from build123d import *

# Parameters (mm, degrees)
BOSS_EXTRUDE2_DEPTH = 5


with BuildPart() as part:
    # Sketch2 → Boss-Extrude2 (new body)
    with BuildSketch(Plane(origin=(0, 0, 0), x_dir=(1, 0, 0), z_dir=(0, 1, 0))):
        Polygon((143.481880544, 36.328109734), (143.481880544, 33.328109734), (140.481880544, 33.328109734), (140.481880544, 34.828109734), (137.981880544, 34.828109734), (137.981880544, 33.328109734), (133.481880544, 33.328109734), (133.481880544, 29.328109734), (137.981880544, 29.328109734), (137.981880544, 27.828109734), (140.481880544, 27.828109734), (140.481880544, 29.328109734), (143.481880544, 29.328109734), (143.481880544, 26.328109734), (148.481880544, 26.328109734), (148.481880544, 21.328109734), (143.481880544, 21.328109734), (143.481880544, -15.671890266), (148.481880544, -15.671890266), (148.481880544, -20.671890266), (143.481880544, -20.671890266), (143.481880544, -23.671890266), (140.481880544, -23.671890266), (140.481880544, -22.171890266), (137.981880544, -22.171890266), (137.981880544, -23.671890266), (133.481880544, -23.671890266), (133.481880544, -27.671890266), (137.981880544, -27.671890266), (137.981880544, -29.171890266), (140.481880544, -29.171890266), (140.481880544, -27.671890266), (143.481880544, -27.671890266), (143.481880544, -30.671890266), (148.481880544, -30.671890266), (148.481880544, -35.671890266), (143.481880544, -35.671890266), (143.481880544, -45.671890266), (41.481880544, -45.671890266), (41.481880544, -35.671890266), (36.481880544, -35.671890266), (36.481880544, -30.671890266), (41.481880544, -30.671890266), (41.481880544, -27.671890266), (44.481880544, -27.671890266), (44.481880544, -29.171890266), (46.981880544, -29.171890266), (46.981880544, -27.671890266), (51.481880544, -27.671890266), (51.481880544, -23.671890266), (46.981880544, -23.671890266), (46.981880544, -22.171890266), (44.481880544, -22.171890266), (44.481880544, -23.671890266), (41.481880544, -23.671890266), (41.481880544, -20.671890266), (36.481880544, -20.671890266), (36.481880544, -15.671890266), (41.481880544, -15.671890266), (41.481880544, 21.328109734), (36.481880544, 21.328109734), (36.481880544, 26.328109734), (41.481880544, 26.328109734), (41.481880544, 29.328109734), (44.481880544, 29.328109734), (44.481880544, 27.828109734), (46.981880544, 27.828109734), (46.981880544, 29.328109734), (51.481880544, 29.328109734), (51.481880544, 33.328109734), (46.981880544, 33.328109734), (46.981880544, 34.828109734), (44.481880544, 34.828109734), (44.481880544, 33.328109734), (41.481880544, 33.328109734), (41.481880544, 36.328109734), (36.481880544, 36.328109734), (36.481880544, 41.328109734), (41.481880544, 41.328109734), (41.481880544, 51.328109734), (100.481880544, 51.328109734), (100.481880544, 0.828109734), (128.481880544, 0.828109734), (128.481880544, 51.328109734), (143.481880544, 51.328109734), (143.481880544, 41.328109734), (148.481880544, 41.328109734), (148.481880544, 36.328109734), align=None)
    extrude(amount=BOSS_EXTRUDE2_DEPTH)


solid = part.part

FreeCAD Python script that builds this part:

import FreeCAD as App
import Part
import Sketcher


def add_polygon(sketch, points):
    """Adds a closed chain of lines whose ends are joined by coincident constraints."""
    first, n = sketch.GeometryCount, len(points)
    for a, b in zip(points, points[1:] + points[:1]):
        sketch.addGeometry(Part.LineSegment(App.Vector(*a, 0), App.Vector(*b, 0)), False)
    for i in range(n):
        sketch.addConstraint(Sketcher.Constraint("Coincident", first + i, 2, first + (i + 1) % n, 1))

doc = App.newDocument("Part")
body = doc.addObject("PartDesign::Body", "Body")

sketch1 = body.newObject("Sketcher::SketchObject", "Sketch")
sketch1.AttachmentSupport = (doc.getObject("XZ_Plane"), [""])
sketch1.MapMode = "FlatFace"
add_polygon(sketch1, [(143.481881, -33.32811), (143.481881, -36.32811), (148.481881, -36.32811), (148.481881, -41.32811), (143.481881, -41.32811), (143.481881, -51.32811), (128.481881, -51.32811), (128.481881, -0.82811), (100.481881, -0.82811), (100.481881, -51.32811), (41.481881, -51.32811), (41.481881, -41.32811), (36.481881, -41.32811), (36.481881, -36.32811), (41.481881, -36.32811), (41.481881, -33.32811), (44.481881, -33.32811), (44.481881, -34.82811), (46.981881, -34.82811), (46.981881, -33.32811), (51.481881, -33.32811), (51.481881, -29.32811), (46.981881, -29.32811), (46.981881, -27.82811), (44.481881, -27.82811), (44.481881, -29.32811), (41.481881, -29.32811), (41.481881, -26.32811), (36.481881, -26.32811), (36.481881, -21.32811), (41.481881, -21.32811), (41.481881, 15.67189), (36.481881, 15.67189), (36.481881, 20.67189), (41.481881, 20.67189), (41.481881, 23.67189), (44.481881, 23.67189), (44.481881, 22.17189), (46.981881, 22.17189), (46.981881, 23.67189), (51.481881, 23.67189), (51.481881, 27.67189), (46.981881, 27.67189), (46.981881, 29.17189), (44.481881, 29.17189), (44.481881, 27.67189), (41.481881, 27.67189), (41.481881, 30.67189), (36.481881, 30.67189), (36.481881, 35.67189), (41.481881, 35.67189), (41.481881, 45.67189), (143.481881, 45.67189), (143.481881, 35.67189), (148.481881, 35.67189), (148.481881, 30.67189), (143.481881, 30.67189), (143.481881, 27.67189), (140.481881, 27.67189), (140.481881, 29.17189), (137.981881, 29.17189), (137.981881, 27.67189), (133.481881, 27.67189), (133.481881, 23.67189), (137.981881, 23.67189), (137.981881, 22.17189), (140.481881, 22.17189), (140.481881, 23.67189), (143.481881, 23.67189), (143.481881, 20.67189), (148.481881, 20.67189), (148.481881, 15.67189), (143.481881, 15.67189), (143.481881, -21.32811), (148.481881, -21.32811), (148.481881, -26.32811), (143.481881, -26.32811), (143.481881, -29.32811), (140.481881, -29.32811), (140.481881, -27.82811), (137.981881, -27.82811), (137.981881, -29.32811), (133.481881, -29.32811), (133.481881, -33.32811), (137.981881, -33.32811), (137.981881, -34.82811), (140.481881, -34.82811), (140.481881, -33.32811)])
sketch1.addConstraint(Sketcher.Constraint("Vertical", 0))
sketch1.addConstraint(Sketcher.Constraint("Horizontal", 1))
sketch1.addConstraint(Sketcher.Constraint("Vertical", 2))
sketch1.addConstraint(Sketcher.Constraint("Horizontal", 3))
sketch1.addConstraint(Sketcher.Constraint("Vertical", 4))
sketch1.addConstraint(Sketcher.Constraint("Horizontal", 5))
sketch1.addConstraint(Sketcher.Constraint("Vertical", 6))
sketch1.addConstraint(Sketcher.Constraint("Horizontal", 7))
sketch1.addConstraint(Sketcher.Constraint("Vertical", 8))
sketch1.addConstraint(Sketcher.Constraint("Horizontal", 9))
sketch1.addConstraint(Sketcher.Constraint("Vertical", 10))
sketch1.addConstraint(Sketcher.Constraint("Horizontal", 11))
sketch1.addConstraint(Sketcher.Constraint("Vertical", 12))
sketch1.addConstraint(Sketcher.Constraint("Horizontal", 13))
sketch1.addConstraint(Sketcher.Constraint("Vertical", 14))
sketch1.addConstraint(Sketcher.Constraint("Horizontal", 15))
sketch1.addConstraint(Sketcher.Constraint("Vertical", 16))
sketch1.addConstraint(Sketcher.Constraint("Horizontal", 17))
sketch1.addConstraint(Sketcher.Constraint("Vertical", 18))
sketch1.addConstraint(Sketcher.Constraint("Horizontal", 19))
sketch1.addConstraint(Sketcher.Constraint("Vertical", 20))
sketch1.addConstraint(Sketcher.Constraint("Horizontal", 21))
sketch1.addConstraint(Sketcher.Constraint("Vertical", 22))
sketch1.addConstraint(Sketcher.Constraint("Horizontal", 23))
sketch1.addConstraint(Sketcher.Constraint("Vertical", 24))
sketch1.addConstraint(Sketcher.Constraint("Horizontal", 25))
sketch1.addConstraint(Sketcher.Constraint("Vertical", 26))
sketch1.addConstraint(Sketcher.Constraint("Horizontal", 27))
sketch1.addConstraint(Sketcher.Constraint("Vertical", 28))
sketch1.addConstraint(Sketcher.Constraint("Horizontal", 29))
sketch1.addConstraint(Sketcher.Constraint("Vertical", 30))
sketch1.addConstraint(Sketcher.Constraint("Horizontal", 31))
sketch1.addConstraint(Sketcher.Constraint("Vertical", 32))
sketch1.addConstraint(Sketcher.Constraint("Horizontal", 33))
sketch1.addConstraint(Sketcher.Constraint("Vertical", 34))
sketch1.addConstraint(Sketcher.Constraint("Horizontal", 35))
sketch1.addConstraint(Sketcher.Constraint("Vertical", 36))
sketch1.addConstraint(Sketcher.Constraint("Horizontal", 37))
sketch1.addConstraint(Sketcher.Constraint("Vertical", 38))
sketch1.addConstraint(Sketcher.Constraint("Horizontal", 39))
sketch1.addConstraint(Sketcher.Constraint("Vertical", 40))
sketch1.addConstraint(Sketcher.Constraint("Horizontal", 41))
sketch1.addConstraint(Sketcher.Constraint("Vertical", 42))
sketch1.addConstraint(Sketcher.Constraint("Horizontal", 43))
sketch1.addConstraint(Sketcher.Constraint("Vertical", 44))
sketch1.addConstraint(Sketcher.Constraint("Horizontal", 45))
sketch1.addConstraint(Sketcher.Constraint("Vertical", 46))
sketch1.addConstraint(Sketcher.Constraint("Horizontal", 47))
sketch1.addConstraint(Sketcher.Constraint("Vertical", 48))
sketch1.addConstraint(Sketcher.Constraint("Horizontal", 49))
sketch1.addConstraint(Sketcher.Constraint("Vertical", 50))
sketch1.addConstraint(Sketcher.Constraint("Horizontal", 51))
sketch1.addConstraint(Sketcher.Constraint("Vertical", 52))
sketch1.addConstraint(Sketcher.Constraint("Horizontal", 53))
sketch1.addConstraint(Sketcher.Constraint("Vertical", 54))
sketch1.addConstraint(Sketcher.Constraint("Horizontal", 55))
sketch1.addConstraint(Sketcher.Constraint("Vertical", 56))
sketch1.addConstraint(Sketcher.Constraint("Horizontal", 57))
sketch1.addConstraint(Sketcher.Constraint("Vertical", 58))
sketch1.addConstraint(Sketcher.Constraint("Horizontal", 59))
sketch1.addConstraint(Sketcher.Constraint("Vertical", 60))
sketch1.addConstraint(Sketcher.Constraint("Horizontal", 61))
sketch1.addConstraint(Sketcher.Constraint("Vertical", 62))
sketch1.addConstraint(Sketcher.Constraint("Horizontal", 63))
sketch1.addConstraint(Sketcher.Constraint("Vertical", 64))
sketch1.addConstraint(Sketcher.Constraint("Horizontal", 65))
sketch1.addConstraint(Sketcher.Constraint("Vertical", 66))
sketch1.addConstraint(Sketcher.Constraint("Horizontal", 67))
sketch1.addConstraint(Sketcher.Constraint("Vertical", 68))
sketch1.addConstraint(Sketcher.Constraint("Horizontal", 69))
sketch1.addConstraint(Sketcher.Constraint("Vertical", 70))
sketch1.addConstraint(Sketcher.Constraint("Horizontal", 71))
sketch1.addConstraint(Sketcher.Constraint("Vertical", 72))
sketch1.addConstraint(Sketcher.Constraint("Horizontal", 73))
sketch1.addConstraint(Sketcher.Constraint("Vertical", 74))
sketch1.addConstraint(Sketcher.Constraint("Horizontal", 75))
sketch1.addConstraint(Sketcher.Constraint("Vertical", 76))
sketch1.addConstraint(Sketcher.Constraint("Horizontal", 77))
sketch1.addConstraint(Sketcher.Constraint("Vertical", 78))
sketch1.addConstraint(Sketcher.Constraint("Horizontal", 79))
sketch1.addConstraint(Sketcher.Constraint("Vertical", 80))
sketch1.addConstraint(Sketcher.Constraint("Horizontal", 81))
sketch1.addConstraint(Sketcher.Constraint("Vertical", 82))
sketch1.addConstraint(Sketcher.Constraint("Horizontal", 83))
sketch1.addConstraint(Sketcher.Constraint("Vertical", 84))
sketch1.addConstraint(Sketcher.Constraint("Horizontal", 85))
sketch1.addConstraint(Sketcher.Constraint("Vertical", 86))
sketch1.addConstraint(Sketcher.Constraint("Horizontal", 87))
sketch1.addConstraint(Sketcher.Constraint("Horizontal", 5, 2, 8, 2))
sketch1.addConstraint(Sketcher.Constraint("Horizontal", 3, 2, 10, 2))
sketch1.addConstraint(Sketcher.Constraint("Horizontal", 1, 2, 12, 2))
sketch1.addConstraint(Sketcher.Constraint("Horizontal", 15, 2, 18, 2))
sketch1.addConstraint(Sketcher.Constraint("Horizontal", 21, 2, 24, 2))
sketch1.addConstraint(Sketcher.Constraint("Horizontal", 35, 2, 38, 2))
sketch1.addConstraint(Sketcher.Constraint("Horizontal", 41, 2, 44, 2))
sketch1.addConstraint(Sketcher.Constraint("Horizontal", 49, 2, 52, 2))
sketch1.addConstraint(Sketcher.Constraint("Horizontal", 47, 2, 54, 2))
sketch1.addConstraint(Sketcher.Constraint("Horizontal", 45, 2, 56, 2))
sketch1.addConstraint(Sketcher.Constraint("Horizontal", 43, 2, 58, 2))
sketch1.addConstraint(Sketcher.Constraint("Horizontal", 57, 2, 60, 2))
sketch1.addConstraint(Sketcher.Constraint("Horizontal", 39, 2, 62, 2))
sketch1.addConstraint(Sketcher.Constraint("Horizontal", 37, 2, 64, 2))
sketch1.addConstraint(Sketcher.Constraint("Horizontal", 63, 2, 66, 2))
sketch1.addConstraint(Sketcher.Constraint("Horizontal", 33, 2, 68, 2))
sketch1.addConstraint(Sketcher.Constraint("Horizontal", 31, 2, 70, 2))
sketch1.addConstraint(Sketcher.Constraint("Horizontal", 29, 2, 72, 2))
sketch1.addConstraint(Sketcher.Constraint("Horizontal", 27, 2, 74, 2))
sketch1.addConstraint(Sketcher.Constraint("Horizontal", 25, 2, 76, 2))
sketch1.addConstraint(Sketcher.Constraint("Horizontal", 23, 2, 78, 2))
sketch1.addConstraint(Sketcher.Constraint("Horizontal", 77, 2, 80, 2))
sketch1.addConstraint(Sketcher.Constraint("Horizontal", 19, 2, 82, 2))
sketch1.addConstraint(Sketcher.Constraint("Horizontal", 17, 2, 84, 2))
sketch1.addConstraint(Sketcher.Constraint("Horizontal", 83, 2, 86, 2))
sketch1.addConstraint(Sketcher.Constraint("Vertical", 0, 2, 3, 2))
sketch1.addConstraint(Sketcher.Constraint("Vertical", 10, 2, 13, 2))
sketch1.addConstraint(Sketcher.Constraint("Vertical", 18, 2, 21, 2))
sketch1.addConstraint(Sketcher.Constraint("Vertical", 16, 2, 23, 2))
sketch1.addConstraint(Sketcher.Constraint("Vertical", 14, 2, 25, 2))
sketch1.addConstraint(Sketcher.Constraint("Vertical", 12, 2, 27, 2))
sketch1.addConstraint(Sketcher.Constraint("Vertical", 26, 2, 29, 2))
sketch1.addConstraint(Sketcher.Constraint("Vertical", 28, 2, 31, 2))
sketch1.addConstraint(Sketcher.Constraint("Vertical", 30, 2, 33, 2))
sketch1.addConstraint(Sketcher.Constraint("Vertical", 24, 2, 35, 2))
sketch1.addConstraint(Sketcher.Constraint("Vertical", 22, 2, 37, 2))
sketch1.addConstraint(Sketcher.Constraint("Vertical", 20, 2, 39, 2))
sketch1.addConstraint(Sketcher.Constraint("Vertical", 38, 2, 41, 2))
sketch1.addConstraint(Sketcher.Constraint("Vertical", 36, 2, 43, 2))
sketch1.addConstraint(Sketcher.Constraint("Vertical", 34, 2, 45, 2))
sketch1.addConstraint(Sketcher.Constraint("Vertical", 32, 2, 47, 2))
sketch1.addConstraint(Sketcher.Constraint("Vertical", 46, 2, 49, 2))
sketch1.addConstraint(Sketcher.Constraint("Vertical", 4, 2, 51, 2))
sketch1.addConstraint(Sketcher.Constraint("Vertical", 2, 2, 53, 2))
sketch1.addConstraint(Sketcher.Constraint("Vertical", 52, 2, 55, 2))
sketch1.addConstraint(Sketcher.Constraint("Vertical", 60, 2, 63, 2))
sketch1.addConstraint(Sketcher.Constraint("Vertical", 58, 2, 65, 2))
sketch1.addConstraint(Sketcher.Constraint("Vertical", 56, 2, 67, 2))
sketch1.addConstraint(Sketcher.Constraint("Vertical", 54, 2, 69, 2))
sketch1.addConstraint(Sketcher.Constraint("Vertical", 68, 2, 71, 2))
sketch1.addConstraint(Sketcher.Constraint("Vertical", 70, 2, 73, 2))
sketch1.addConstraint(Sketcher.Constraint("Vertical", 72, 2, 75, 2))
sketch1.addConstraint(Sketcher.Constraint("Vertical", 66, 2, 77, 2))
sketch1.addConstraint(Sketcher.Constraint("Vertical", 64, 2, 79, 2))
sketch1.addConstraint(Sketcher.Constraint("Vertical", 62, 2, 81, 2))
sketch1.addConstraint(Sketcher.Constraint("Vertical", 80, 2, 83, 2))
sketch1.addConstraint(Sketcher.Constraint("Vertical", 78, 2, 85, 2))
sketch1.addConstraint(Sketcher.Constraint("Equal", 3, 11))
sketch1.addConstraint(Sketcher.Constraint("Equal", 45, 57))
sketch1.addConstraint(Sketcher.Constraint("Equal", 43, 59))
sketch1.addConstraint(Sketcher.Constraint("Equal", 41, 61))
sketch1.addConstraint(Sketcher.Constraint("Equal", 87, 0))
sketch1.addConstraint(Sketcher.Constraint("Equal", 75, 2))
sketch1.addConstraint(Sketcher.Constraint("Equal", 18, 22))
sketch1.addConstraint(Sketcher.Constraint("Equal", 14, 26))
sketch1.addConstraint(Sketcher.Constraint("Equal", 12, 28))
sketch1.addConstraint(Sketcher.Constraint("Equal", 28, 32))
sketch1.addConstraint(Sketcher.Constraint("Equal", 26, 34))
sketch1.addConstraint(Sketcher.Constraint("Equal", 24, 36))
sketch1.addConstraint(Sketcher.Constraint("Equal", 20, 40))
sketch1.addConstraint(Sketcher.Constraint("Equal", 38, 42))
sketch1.addConstraint(Sketcher.Constraint("Equal", 34, 46))
sketch1.addConstraint(Sketcher.Constraint("Equal", 32, 48))
sketch1.addConstraint(Sketcher.Constraint("Equal", 10, 50))
sketch1.addConstraint(Sketcher.Constraint("DistanceX", 1, 1, 1, 2, 5.0))
sketch1.addConstraint(Sketcher.Constraint("DistanceX", 5, 2, 5, 1, 15.0))
sketch1.addConstraint(Sketcher.Constraint("DistanceX", 7, 2, 7, 1, 28.0))
sketch1.addConstraint(Sketcher.Constraint("DistanceX", 9, 2, 9, 1, 59.0))
sketch1.addConstraint(Sketcher.Constraint("DistanceX", 15, 1, 15, 2, 3.0))
sketch1.addConstraint(Sketcher.Constraint("DistanceY", 4, 2, 4, 1, 10.0))
sketch1.addConstraint(Sketcher.Constraint("DistanceY", 20, 1, 20, 2, 4.0))
sketch1.addConstraint(Sketcher.Constraint("DistanceY", 30, 1, 30, 2, 37.0))
sketch1.addConstraint(Sketcher.Constraint("DistanceX", 17, 1, 17, 2, 2.5))
sketch1.addConstraint(Sketcher.Constraint("DistanceX", 19, 1, 19, 2, 4.5))
sketch1.addConstraint(Sketcher.Constraint("DistanceY", 6, 1, 6, 2, 50.5))
sketch1.addConstraint(Sketcher.Constraint("DistanceY", 16, 2, 16, 1, 1.5))
sketch1.addConstraint(Sketcher.Constraint("DistanceX", -1, 1, 0, 2, 143.481881))
sketch1.addConstraint(Sketcher.Constraint("DistanceY", 0, 2, -1, 1, 36.32811))
pad1 = body.newObject("PartDesign::Pad", "Pad")
pad1.Profile = sketch1
pad1.Length = 5
pad1.Reversed = True

doc.recompute()
